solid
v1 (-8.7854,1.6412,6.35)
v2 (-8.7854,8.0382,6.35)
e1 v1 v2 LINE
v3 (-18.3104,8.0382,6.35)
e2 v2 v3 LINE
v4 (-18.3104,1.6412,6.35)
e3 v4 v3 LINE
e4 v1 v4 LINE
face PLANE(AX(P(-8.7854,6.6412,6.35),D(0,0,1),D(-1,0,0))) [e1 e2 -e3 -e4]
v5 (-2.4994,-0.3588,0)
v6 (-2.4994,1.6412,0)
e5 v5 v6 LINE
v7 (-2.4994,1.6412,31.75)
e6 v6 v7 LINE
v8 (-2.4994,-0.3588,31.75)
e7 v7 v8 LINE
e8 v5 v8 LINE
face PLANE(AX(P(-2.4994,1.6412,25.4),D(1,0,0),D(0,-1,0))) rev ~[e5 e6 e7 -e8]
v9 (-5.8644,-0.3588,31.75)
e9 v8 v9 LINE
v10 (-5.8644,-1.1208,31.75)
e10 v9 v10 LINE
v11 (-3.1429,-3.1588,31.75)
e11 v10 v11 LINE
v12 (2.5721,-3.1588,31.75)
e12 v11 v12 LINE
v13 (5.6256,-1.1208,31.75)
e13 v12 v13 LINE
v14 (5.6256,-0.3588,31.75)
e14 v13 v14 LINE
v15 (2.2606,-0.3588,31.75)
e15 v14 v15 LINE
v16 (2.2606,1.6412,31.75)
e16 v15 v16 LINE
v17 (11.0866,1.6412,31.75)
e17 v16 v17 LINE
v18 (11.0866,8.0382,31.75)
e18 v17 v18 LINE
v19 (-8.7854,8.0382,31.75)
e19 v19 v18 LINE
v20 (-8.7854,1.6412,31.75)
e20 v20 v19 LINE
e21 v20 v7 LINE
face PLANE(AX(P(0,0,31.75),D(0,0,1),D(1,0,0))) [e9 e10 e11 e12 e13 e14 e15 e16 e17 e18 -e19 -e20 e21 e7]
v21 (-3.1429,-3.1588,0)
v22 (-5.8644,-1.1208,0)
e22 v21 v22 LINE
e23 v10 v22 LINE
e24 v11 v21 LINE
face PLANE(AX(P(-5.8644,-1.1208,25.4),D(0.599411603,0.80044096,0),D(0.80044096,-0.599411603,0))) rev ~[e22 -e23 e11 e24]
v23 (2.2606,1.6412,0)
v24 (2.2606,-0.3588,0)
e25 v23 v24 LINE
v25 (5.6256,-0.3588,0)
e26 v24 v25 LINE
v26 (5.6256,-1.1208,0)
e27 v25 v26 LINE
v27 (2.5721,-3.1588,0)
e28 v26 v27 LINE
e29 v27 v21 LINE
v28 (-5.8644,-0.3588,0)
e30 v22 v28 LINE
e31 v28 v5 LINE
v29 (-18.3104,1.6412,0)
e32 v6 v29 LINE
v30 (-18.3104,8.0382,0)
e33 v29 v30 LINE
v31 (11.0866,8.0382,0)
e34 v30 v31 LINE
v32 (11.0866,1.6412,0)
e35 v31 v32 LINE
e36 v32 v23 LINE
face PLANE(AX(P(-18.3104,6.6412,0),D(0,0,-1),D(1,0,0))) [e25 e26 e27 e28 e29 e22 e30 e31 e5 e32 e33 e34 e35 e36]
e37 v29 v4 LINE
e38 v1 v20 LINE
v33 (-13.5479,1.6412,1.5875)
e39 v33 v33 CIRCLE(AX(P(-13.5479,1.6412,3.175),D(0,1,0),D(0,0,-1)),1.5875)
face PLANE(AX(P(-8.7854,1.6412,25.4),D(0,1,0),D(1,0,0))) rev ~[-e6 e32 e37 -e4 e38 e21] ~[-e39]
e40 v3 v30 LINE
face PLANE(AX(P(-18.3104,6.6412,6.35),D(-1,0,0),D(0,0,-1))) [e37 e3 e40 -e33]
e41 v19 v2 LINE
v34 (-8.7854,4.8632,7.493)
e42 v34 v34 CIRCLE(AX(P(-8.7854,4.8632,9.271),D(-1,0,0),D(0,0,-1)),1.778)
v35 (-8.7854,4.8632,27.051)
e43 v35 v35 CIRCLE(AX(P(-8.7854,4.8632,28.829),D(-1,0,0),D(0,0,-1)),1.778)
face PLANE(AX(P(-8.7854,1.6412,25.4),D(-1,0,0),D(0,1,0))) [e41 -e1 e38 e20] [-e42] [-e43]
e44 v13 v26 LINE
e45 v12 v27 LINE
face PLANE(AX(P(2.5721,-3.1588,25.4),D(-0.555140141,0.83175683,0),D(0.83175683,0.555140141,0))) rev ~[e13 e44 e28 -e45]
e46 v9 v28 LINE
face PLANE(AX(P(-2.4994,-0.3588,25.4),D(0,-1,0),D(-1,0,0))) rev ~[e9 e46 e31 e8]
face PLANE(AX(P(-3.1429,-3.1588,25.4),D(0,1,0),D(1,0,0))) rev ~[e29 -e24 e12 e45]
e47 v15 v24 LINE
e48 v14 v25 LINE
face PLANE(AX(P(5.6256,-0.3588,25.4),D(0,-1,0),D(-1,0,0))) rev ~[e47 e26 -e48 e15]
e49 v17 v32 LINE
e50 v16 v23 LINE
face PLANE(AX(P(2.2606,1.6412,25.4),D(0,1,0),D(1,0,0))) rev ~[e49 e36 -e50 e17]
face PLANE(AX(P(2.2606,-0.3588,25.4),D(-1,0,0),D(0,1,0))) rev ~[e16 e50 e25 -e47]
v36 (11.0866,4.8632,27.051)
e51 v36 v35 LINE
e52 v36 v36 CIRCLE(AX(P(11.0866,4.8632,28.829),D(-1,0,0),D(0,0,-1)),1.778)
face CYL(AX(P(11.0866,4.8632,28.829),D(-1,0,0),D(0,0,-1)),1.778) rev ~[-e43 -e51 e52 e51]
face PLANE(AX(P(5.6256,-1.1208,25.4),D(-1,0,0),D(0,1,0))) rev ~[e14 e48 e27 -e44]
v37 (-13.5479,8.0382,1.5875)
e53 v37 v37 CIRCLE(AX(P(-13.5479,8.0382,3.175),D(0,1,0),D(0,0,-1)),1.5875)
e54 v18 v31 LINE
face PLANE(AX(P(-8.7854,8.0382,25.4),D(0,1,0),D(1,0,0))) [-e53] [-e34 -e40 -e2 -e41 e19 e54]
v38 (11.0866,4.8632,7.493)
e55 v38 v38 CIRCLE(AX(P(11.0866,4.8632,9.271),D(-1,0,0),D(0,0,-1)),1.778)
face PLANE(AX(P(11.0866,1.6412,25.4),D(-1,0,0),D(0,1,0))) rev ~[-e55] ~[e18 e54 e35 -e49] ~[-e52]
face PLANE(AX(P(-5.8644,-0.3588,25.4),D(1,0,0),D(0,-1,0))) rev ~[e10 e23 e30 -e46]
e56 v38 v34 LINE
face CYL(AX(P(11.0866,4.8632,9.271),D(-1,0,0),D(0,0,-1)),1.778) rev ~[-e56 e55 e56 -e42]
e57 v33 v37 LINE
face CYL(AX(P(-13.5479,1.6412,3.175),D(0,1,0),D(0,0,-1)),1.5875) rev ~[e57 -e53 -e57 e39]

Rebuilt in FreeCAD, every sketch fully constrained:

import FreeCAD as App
import Part
import Sketcher
Q = App.Units.Quantity

doc = App.newDocument("Part")
params = doc.addObject("Spreadsheet::Sheet", "Params")
for row, (alias, value) in enumerate([
    ("sketch1_height", "0.03 in"),
    ("sketch1_width", "0.225 in"),
    ("pad1_length", "1 in"),
    ("sketch2_height", "0.25 in"),
    ("pad2_length", "0.375 in"),
    ("sketch3_height", "0.25 in"),
    ("sketch3_height2", "1 in"),
    ("sketch3_width", "0.375 in"),
    ("pad3_length", "0.055 in"),
    ("sketch4_diameter", "0.125 in"),
    ("hole_diameter", "0.125 in"),
    ("hole_depth", "1 in"),
    ("sketch5_height", "0.03 in"),
    ("sketch5_width", "0.225 in"),
    ("pad4_length", "0.25 in"),
    ("sketch6_diameter", "0.14 in"),
    ("hole2_diameter", "0.14 in"),
    ("hole2_depth", "1 in"),
], start=1):
    params.set(f"A{row}", alias)
    params.set(f"B{row}", "=" + value)
    params.setAlias(f"B{row}", alias)

body = doc.addObject("PartDesign::Body", "Body")

# Sketch on XY plane
sketch1 = body.newObject("Sketcher::SketchObject", "Sketch")
sketch1.AttachmentSupport = (doc.getObject("XY_Plane"), [""])
sketch1.MapMode = "FlatFace"
sketch1.addGeometry(Part.LineSegment(App.Vector(11.0866, 6.6412, 0), App.Vector(-8.7854, 6.6412, 0)), False)
sketch1.addGeometry(Part.LineSegment(App.Vector(-8.7854, 6.6412, 0), App.Vector(-8.7854, 1.6412, 0)), False)
sketch1.addGeometry(Part.LineSegment(App.Vector(-8.7854, 1.6412, 0), App.Vector(-2.4994, 1.6412, 0)), False)
sketch1.addGeometry(Part.LineSegment(App.Vector(-2.4994, 1.6412, 0), App.Vector(-2.4994, -0.3588, 0)), False)
sketch1.addGeometry(Part.LineSegment(App.Vector(-2.4994, -0.3588, 0), App.Vector(-5.8644, -0.3588, 0)), False)
sketch1.addGeometry(Part.LineSegment(App.Vector(-5.8644, -0.3588, 0), App.Vector(-5.8644, -1.1208, 0)), False)
sketch1.addGeometry(Part.LineSegment(App.Vector(-5.8644, -1.1208, 0), App.Vector(-3.1429, -3.1588, 0)), False)
sketch1.addGeometry(Part.LineSegment(App.Vector(-3.1429, -3.1588, 0), App.Vector(2.5721, -3.1588, 0)), False)
sketch1.addGeometry(Part.LineSegment(App.Vector(2.5721, -3.1588, 0), App.Vector(5.6256, -1.1208, 0)), False)
sketch1.addGeometry(Part.LineSegment(App.Vector(5.6256, -1.1208, 0), App.Vector(5.6256, -0.3588, 0)), False)
sketch1.addGeometry(Part.LineSegment(App.Vector(5.6256, -0.3588, 0), App.Vector(2.2606, -0.3588, 0)), False)
sketch1.addGeometry(Part.LineSegment(App.Vector(2.2606, -0.3588, 0), App.Vector(2.2606, 1.6412, 0)), False)
sketch1.addGeometry(Part.LineSegment(App.Vector(2.2606, 1.6412, 0), App.Vector(11.0866, 1.6412, 0)), False)
sketch1.addGeometry(Part.LineSegment(App.Vector(11.0866, 1.6412, 0), App.Vector(11.0866, 6.6412, 0)), False)
sketch1.addConstraint(Sketcher.Constraint("Coincident", 0, 2, 1, 1))
sketch1.addConstraint(Sketcher.Constraint("Coincident", 1, 2, 2, 1))
sketch1.addConstraint(Sketcher.Constraint("Coincident", 2, 2, 3, 1))
sketch1.addConstraint(Sketcher.Constraint("Coincident", 3, 2, 4, 1))
sketch1.addConstraint(Sketcher.Constraint("Coincident", 4, 2, 5, 1))
sketch1.addConstraint(Sketcher.Constraint("Coincident", 5, 2, 6, 1))
sketch1.addConstraint(Sketcher.Constraint("Coincident", 6, 2, 7, 1))
sketch1.addConstraint(Sketcher.Constraint("Coincident", 7, 2, 8, 1))
sketch1.addConstraint(Sketcher.Constraint("Coincident", 8, 2, 9, 1))
sketch1.addConstraint(Sketcher.Constraint("Coincident", 9, 2, 10, 1))
sketch1.addConstraint(Sketcher.Constraint("Coincident", 10, 2, 11, 1))
sketch1.addConstraint(Sketcher.Constraint("Coincident", 11, 2, 12, 1))
sketch1.addConstraint(Sketcher.Constraint("Coincident", 12, 2, 13, 1))
sketch1.addConstraint(Sketcher.Constraint("Coincident", 13, 2, 0, 1))
sketch1.addConstraint(Sketcher.Constraint("Horizontal", 0))
sketch1.addConstraint(Sketcher.Constraint("Vertical", 1))
sketch1.addConstraint(Sketcher.Constraint("Horizontal", 2))
sketch1.addConstraint(Sketcher.Constraint("Vertical", 3))
sketch1.addConstraint(Sketcher.Constraint("Horizontal", 4))
sketch1.addConstraint(Sketcher.Constraint("Vertical", 5))
sketch1.addConstraint(Sketcher.Constraint("Horizontal", 7))
sketch1.addConstraint(Sketcher.Constraint("Vertical", 9))
sketch1.addConstraint(Sketcher.Constraint("Horizontal", 10))
sketch1.addConstraint(Sketcher.Constraint("Vertical", 11))
sketch1.addConstraint(Sketcher.Constraint("Horizontal", 12))
sketch1.addConstraint(Sketcher.Constraint("Vertical", 13))
sketch1.addConstraint(Sketcher.Constraint("Horizontal", 5, 2, 8, 2))
sketch1.addConstraint(Sketcher.Constraint("Horizontal", 4, 2, 9, 2))
sketch1.addConstraint(Sketcher.Constraint("Horizontal", 2, 2, 11, 2))
sketch1.addConstraint(Sketcher.Constraint("Equal", 4, 10))
sketch1.addConstraint(Sketcher.Constraint("DistanceY", 5, 2, 5, 1, Q("0.03 in")))
sketch1.addConstraint(Sketcher.Constraint("DistanceX", 1, 2, 4, 2, Q("0.115 in")))
sketch1.addConstraint(Sketcher.Constraint("DistanceX", 9, 2, 12, 2, Q("0.215 in")))
sketch1.addConstraint(Sketcher.Constraint("DistanceX", 4, 2, 4, 1, 3.365))
sketch1.addConstraint(Sketcher.Constraint("DistanceY", 1, 2, 1, 1, 5.0))
sketch1.addConstraint(Sketcher.Constraint("DistanceY", 3, 2, 3, 1, 2.0))
sketch1.addConstraint(Sketcher.Constraint("DistanceX", 7, 1, 7, 2, Q("0.225 in")))
sketch1.addConstraint(Sketcher.Constraint("Angle", 8, Q("33.7204 deg")))
sketch1.addConstraint(Sketcher.Constraint("DistanceX", 1, 2, 6, 2, 5.6425))
sketch1.addConstraint(Sketcher.Constraint("DistanceX", 5, 2, 8, 2, 11.49))
sketch1.addConstraint(Sketcher.Constraint("DistanceX", -1, 1, 10, 2, Q("0.089 in")))
sketch1.addConstraint(Sketcher.Constraint("DistanceY", -1, 1, 0, 2, 6.6412))
sketch1.setExpression("Constraints[30]", "Params.sketch1_height")
sketch1.setExpression("Constraints[36]", "Params.sketch1_width")
pad1 = body.newObject("PartDesign::Pad", "Pad")
pad1.Profile = sketch1
pad1.setExpression("Length", "Params.pad1_length")

# Sketch on YZ plane
sketch2 = body.newObject("Sketcher::SketchObject", "Sketch001")
sketch2.AttachmentSupport = (doc.getObject("YZ_Plane"), [""])
sketch2.MapMode = "FlatFace"
sketch2.AttachmentOffset = App.Placement(App.Vector(0, 0, -8.7854), App.Rotation())
sketch2.addGeometry(Part.LineSegment(App.Vector(6.6412, 0, 0), App.Vector(1.6412, 0, 0)), False)
sketch2.addGeometry(Part.LineSegment(App.Vector(1.6412, 0, 0), App.Vector(1.6412, 6.35, 0)), False)
sketch2.addGeometry(Part.LineSegment(App.Vector(1.6412, 6.35, 0), App.Vector(6.6412, 6.35, 0)), False)
sketch2.addGeometry(Part.LineSegment(App.Vector(6.6412, 6.35, 0), App.Vector(6.6412, 0, 0)), False)
sketch2.addConstraint(Sketcher.Constraint("Coincident", 0, 2, 1, 1))
sketch2.addConstraint(Sketcher.Constraint("Coincident", 1, 2, 2, 1))
sketch2.addConstraint(Sketcher.Constraint("Coincident", 2, 2, 3, 1))
sketch2.addConstraint(Sketcher.Constraint("Coincident", 3, 2, 0, 1))
sketch2.addConstraint(Sketcher.Constraint("Horizontal", 0))
sketch2.addConstraint(Sketcher.Constraint("Vertical", 1))
sketch2.addConstraint(Sketcher.Constraint("Horizontal", 2))
sketch2.addConstraint(Sketcher.Constraint("Vertical", 3))
sketch2.addConstraint(Sketcher.Constraint("PointOnObject", 0, 2, -1))
sketch2.addConstraint(Sketcher.Constraint("DistanceY", 1, 1, 1, 2, Q("0.25 in")))
sketch2.addConstraint(Sketcher.Constraint("DistanceX", 0, 2, 0, 1, 5.0))
sketch2.addConstraint(Sketcher.Constraint("DistanceX", -1, 1, 0, 2, 1.6412))
sketch2.setExpression("Constraints[9]", "Params.sketch2_height")
pad2 = body.newObject("PartDesign::Pad", "Pad001")
pad2.Profile = sketch2
pad2.setExpression("Length", "Params.pad2_length")
pad2.Reversed = True

# Sketch on XZ plane
sketch3 = body.newObject("Sketcher::SketchObject", "Sketch002")
sketch3.AttachmentSupport = (doc.getObject("XZ_Plane"), [""])
sketch3.MapMode = "FlatFace"
sketch3.AttachmentOffset = App.Placement(App.Vector(0, 0, -6.6412), App.Rotation())
sketch3.addGeometry(Part.LineSegment(App.Vector(11.0866, 0, 0), App.Vector(-18.3104, 0, 0)), False)
sketch3.addGeometry(Part.LineSegment(App.Vector(-18.3104, 0, 0), App.Vector(-18.3104, 6.35, 0)), False)
sketch3.addGeometry(Part.LineSegment(App.Vector(-18.3104, 6.35, 0), App.Vector(-8.7854, 6.35, 0)), False)
sketch3.addGeometry(Part.LineSegment(App.Vector(-8.7854, 6.35, 0), App.Vector(-8.7854, 25.4, 0)), False)
sketch3.addGeometry(Part.LineSegment(App.Vector(-8.7854, 25.4, 0), App.Vector(11.0866, 25.4, 0)), False)
sketch3.addGeometry(Part.LineSegment(App.Vector(11.0866, 25.4, 0), App.Vector(11.0866, 0, 0)), False)
sketch3.addConstraint(Sketcher.Constraint("Coincident", 0, 2, 1, 1))
sketch3.addConstraint(Sketcher.Constraint("Coincident", 1, 2, 2, 1))
sketch3.addConstraint(Sketcher.Constraint("Coincident", 2, 2, 3, 1))
sketch3.addConstraint(Sketcher.Constraint("Coincident", 3, 2, 4, 1))
sketch3.addConstraint(Sketcher.Constraint("Coincident", 4, 2, 5, 1))
sketch3.addConstraint(Sketcher.Constraint("Coincident", 5, 2, 0, 1))
sketch3.addConstraint(Sketcher.Constraint("Horizontal", 0))
sketch3.addConstraint(Sketcher.Constraint("Vertical", 1))
sketch3.addConstraint(Sketcher.Constraint("Horizontal", 2))
sketch3.addConstraint(Sketcher.Constraint("Vertical", 3))
sketch3.addConstraint(Sketcher.Constraint("Horizontal", 4))
sketch3.addConstraint(Sketcher.Constraint("Vertical", 5))
sketch3.addConstraint(Sketcher.Constraint("PointOnObject", 0, 2, -1))
sketch3.addConstraint(Sketcher.Constraint("DistanceY", 1, 1, 1, 2, Q("0.25 in")))
sketch3.addConstraint(Sketcher.Constraint("DistanceY", 5, 2, 5, 1, Q("1 in")))
sketch3.addConstraint(Sketcher.Constraint("DistanceX", 2, 1, 2, 2, Q("0.375 in")))
sketch3.addConstraint(Sketcher.Constraint("DistanceX", 0, 2, 0, 1, 29.397))
sketch3.addConstraint(Sketcher.Constraint("DistanceX", 0, 2, -1, 1, 18.3104))
sketch3.setExpression("Constraints[13]", "Params.sketch3_height")
sketch3.setExpression("Constraints[14]", "Params.sketch3_height2")
sketch3.setExpression("Constraints[15]", "Params.sketch3_width")
pad3 = body.newObject("PartDesign::Pad", "Pad002")
pad3.Profile = sketch3
pad3.setExpression("Length", "Params.pad3_length")
pad3.Reversed = True

# Sketch on XZ plane
sketch4 = body.newObject("Sketcher::SketchObject", "Sketch003")
sketch4.AttachmentSupport = (doc.getObject("XZ_Plane"), [""])
sketch4.MapMode = "FlatFace"
sketch4.AttachmentOffset = App.Placement(App.Vector(0, 0, -1.6412), App.Rotation())
sketch4.addGeometry(Part.Circle(App.Vector(-13.5479, 3.175, 0), App.Vector(0, 0, 1), 1.5875), False)
sketch4.addConstraint(Sketcher.Constraint("Diameter", 0, Q("0.125 in")))
sketch4.addConstraint(Sketcher.Constraint("DistanceY", -1, 1, 0, 3, Q("0.125 in")))
sketch4.addConstraint(Sketcher.Constraint("DistanceX", 0, 3, -1, 1, 13.548))
sketch4.setExpression("Constraints[0]", "Params.sketch4_diameter")
doc.recompute()
hole = body.newObject("PartDesign::Hole", "Hole")
hole.Profile = sketch4
hole.ThreadType = "None"
hole.setExpression("Diameter", "Params.hole_diameter")
hole.DepthType = "Dimension"
hole.setExpression("Depth", "Params.hole_depth")
hole.DrillPoint = "Angled"
hole.DrillPointAngle = 118

# Sketch on XY plane
sketch5 = body.newObject("Sketcher::SketchObject", "Sketch004")
sketch5.AttachmentSupport = (doc.getObject("XY_Plane"), [""])
sketch5.MapMode = "FlatFace"
sketch5.AttachmentOffset = App.Placement(App.Vector(0, 0, 1 * 25.4), App.Rotation())
sketch5.addGeometry(Part.LineSegment(App.Vector(-8.7854, 8.0382, 0), App.Vector(-8.7854, 1.6412, 0)), False)
sketch5.addGeometry(Part.LineSegment(App.Vector(-8.7854, 1.6412, 0), App.Vector(-2.4994, 1.6412, 0)), False)
sketch5.addGeometry(Part.LineSegment(App.Vector(-2.4994, 1.6412, 0), App.Vector(-2.4994, -0.3588, 0)), False)
sketch5.addGeometry(Part.LineSegment(App.Vector(-2.4994, -0.3588, 0), App.Vector(-5.8644, -0.3588, 0)), False)
sketch5.addGeometry(Part.LineSegment(App.Vector(-5.8644, -0.3588, 0), App.Vector(-5.8644, -1.1208, 0)), False)
sketch5.addGeometry(Part.LineSegment(App.Vector(-5.8644, -1.1208, 0), App.Vector(-3.1429, -3.1588, 0)), False)
sketch5.addGeometry(Part.LineSegment(App.Vector(-3.1429, -3.1588, 0), App.Vector(2.5721, -3.1588, 0)), False)
sketch5.addGeometry(Part.LineSegment(App.Vector(2.5721, -3.1588, 0), App.Vector(5.6256, -1.1208, 0)), False)
sketch5.addGeometry(Part.LineSegment(App.Vector(5.6256, -1.1208, 0), App.Vector(5.6256, -0.3588, 0)), False)
sketch5.addGeometry(Part.LineSegment(App.Vector(5.6256, -0.3588, 0), App.Vector(2.2606, -0.3588, 0)), False)
sketch5.addGeometry(Part.LineSegment(App.Vector(2.2606, -0.3588, 0), App.Vector(2.2606, 1.6412, 0)), False)
sketch5.addGeometry(Part.LineSegment(App.Vector(2.2606, 1.6412, 0), App.Vector(11.0866, 1.6412, 0)), False)
sketch5.addGeometry(Part.LineSegment(App.Vector(11.0866, 1.6412, 0), App.Vector(11.0866, 8.0382, 0)), False)
sketch5.addGeometry(Part.LineSegment(App.Vector(11.0866, 8.0382, 0), App.Vector(-8.7854, 8.0382, 0)), False)
sketch5.addConstraint(Sketcher.Constraint("Coincident", 0, 2, 1, 1))
sketch5.addConstraint(Sketcher.Constraint("Coincident", 1, 2, 2, 1))
sketch5.addConstraint(Sketcher.Constraint("Coincident", 2, 2, 3, 1))
sketch5.addConstraint(Sketcher.Constraint("Coincident", 3, 2, 4, 1))
sketch5.addConstraint(Sketcher.Constraint("Coincident", 4, 2, 5, 1))
sketch5.addConstraint(Sketcher.Constraint("Coincident", 5, 2, 6, 1))
sketch5.addConstraint(Sketcher.Constraint("Coincident", 6, 2, 7, 1))
sketch5.addConstraint(Sketcher.Constraint("Coincident", 7, 2, 8, 1))
sketch5.addConstraint(Sketcher.Constraint("Coincident", 8, 2, 9, 1))
sketch5.addConstraint(Sketcher.Constraint("Coincident", 9, 2, 10, 1))
sketch5.addConstraint(Sketcher.Constraint("Coincident", 10, 2, 11, 1))
sketch5.addConstraint(Sketcher.Constraint("Coincident", 11, 2, 12, 1))
sketch5.addConstraint(Sketcher.Constraint("Coincident", 12, 2, 13, 1))
sketch5.addConstraint(Sketcher.Constraint("Coincident", 13, 2, 0, 1))
sketch5.addConstraint(Sketcher.Constraint("Vertical", 0))
sketch5.addConstraint(Sketcher.Constraint("Horizontal", 1))
sketch5.addConstraint(Sketcher.Constraint("Vertical", 2))
sketch5.addConstraint(Sketcher.Constraint("Horizontal", 3))
sketch5.addConstraint(Sketcher.Constraint("Vertical", 4))
sketch5.addConstraint(Sketcher.Constraint("Horizontal", 6))
sketch5.addConstraint(Sketcher.Constraint("Vertical", 8))
sketch5.addConstraint(Sketcher.Constraint("Horizontal", 9))
sketch5.addConstraint(Sketcher.Constraint("Vertical", 10))
sketch5.addConstraint(Sketcher.Constraint("Horizontal", 11))
sketch5.addConstraint(Sketcher.Constraint("Vertical", 12))
sketch5.addConstraint(Sketcher.Constraint("Horizontal", 13))
sketch5.addConstraint(Sketcher.Constraint("Horizontal", 4, 2, 7, 2))
sketch5.addConstraint(Sketcher.Constraint("Horizontal", 3, 2, 8, 2))
sketch5.addConstraint(Sketcher.Constraint("Horizontal", 1, 2, 10, 2))
sketch5.addConstraint(Sketcher.Constraint("Equal", 3, 9))
sketch5.addConstraint(Sketcher.Constraint("DistanceY", 4, 2, 4, 1, Q("0.03 in")))
sketch5.addConstraint(Sketcher.Constraint("DistanceX", 6, 1, 6, 2, Q("0.225 in")))
sketch5.addConstraint(Sketcher.Constraint("Angle", 7, Q("33.7204 deg")))
sketch5.addConstraint(Sketcher.Constraint("DistanceX", -1, 1, 9, 2, Q("0.089 in")))
sketch5.addConstraint(Sketcher.Constraint("DistanceX", 0, 2, 3, 2, Q("0.115 in")))
sketch5.addConstraint(Sketcher.Constraint("DistanceX", 8, 2, 11, 2, Q("0.215 in")))
sketch5.addConstraint(Sketcher.Constraint("DistanceX", 1, 1, 1, 2, 6.286))
sketch5.addConstraint(Sketcher.Constraint("DistanceX", 13, 2, 13, 1, 19.872))
sketch5.addConstraint(Sketcher.Constraint("DistanceY", 0, 2, 0, 1, 6.397))
sketch5.addConstraint(Sketcher.Constraint("DistanceY", 2, 2, 2, 1, 2.0))
sketch5.addConstraint(Sketcher.Constraint("Distance", 5, 3.4))
sketch5.addConstraint(Sketcher.Constraint("DistanceY", -1, 1, 0, 2, 1.6412))
sketch5.setExpression("Constraints[30]", "Params.sketch5_height")
sketch5.setExpression("Constraints[31]", "Params.sketch5_width")
pad4 = body.newObject("PartDesign::Pad", "Pad003")
pad4.Profile = sketch5
pad4.setExpression("Length", "Params.pad4_length")

# Sketch on YZ plane
sketch6 = body.newObject("Sketcher::SketchObject", "Sketch005")
sketch6.AttachmentSupport = (doc.getObject("YZ_Plane"), [""])
sketch6.MapMode = "FlatFace"
sketch6.AttachmentOffset = App.Placement(App.Vector(0, 0, 11.0866), App.Rotation())
sketch6.addGeometry(Part.Circle(App.Vector(4.8632, 28.829, 0), App.Vector(0, 0, 1), 1.778), False)
sketch6.addGeometry(Part.Circle(App.Vector(4.8632, 9.271, 0), App.Vector(0, 0, 1), 1.778), False)
sketch6.addConstraint(Sketcher.Constraint("Equal", 0, 1))
sketch6.addConstraint(Sketcher.Constraint("Vertical", 0, 3, 1, 3))
sketch6.addConstraint(Sketcher.Constraint("Diameter", 0, Q("0.14 in")))
sketch6.addConstraint(Sketcher.Constraint("DistanceY", 1, 3, 0, 3, Q("0.77 in")))
sketch6.addConstraint(Sketcher.Constraint("DistanceY", -1, 1, 0, 3, Q("1.135 in")))
sketch6.addConstraint(Sketcher.Constraint("DistanceX", -1, 1, 0, 3, 4.8632))
sketch6.setExpression("Constraints[2]", "Params.sketch6_diameter")
doc.recompute()
hole2 = body.newObject("PartDesign::Hole", "Hole001")
hole2.Profile = sketch6
hole2.ThreadType = "None"
hole2.setExpression("Diameter", "Params.hole2_diameter")
hole2.DepthType = "Dimension"
hole2.setExpression("Depth", "Params.hole2_depth")
hole2.DrillPoint = "Angled"
hole2.DrillPointAngle = 118

doc.recompute()
